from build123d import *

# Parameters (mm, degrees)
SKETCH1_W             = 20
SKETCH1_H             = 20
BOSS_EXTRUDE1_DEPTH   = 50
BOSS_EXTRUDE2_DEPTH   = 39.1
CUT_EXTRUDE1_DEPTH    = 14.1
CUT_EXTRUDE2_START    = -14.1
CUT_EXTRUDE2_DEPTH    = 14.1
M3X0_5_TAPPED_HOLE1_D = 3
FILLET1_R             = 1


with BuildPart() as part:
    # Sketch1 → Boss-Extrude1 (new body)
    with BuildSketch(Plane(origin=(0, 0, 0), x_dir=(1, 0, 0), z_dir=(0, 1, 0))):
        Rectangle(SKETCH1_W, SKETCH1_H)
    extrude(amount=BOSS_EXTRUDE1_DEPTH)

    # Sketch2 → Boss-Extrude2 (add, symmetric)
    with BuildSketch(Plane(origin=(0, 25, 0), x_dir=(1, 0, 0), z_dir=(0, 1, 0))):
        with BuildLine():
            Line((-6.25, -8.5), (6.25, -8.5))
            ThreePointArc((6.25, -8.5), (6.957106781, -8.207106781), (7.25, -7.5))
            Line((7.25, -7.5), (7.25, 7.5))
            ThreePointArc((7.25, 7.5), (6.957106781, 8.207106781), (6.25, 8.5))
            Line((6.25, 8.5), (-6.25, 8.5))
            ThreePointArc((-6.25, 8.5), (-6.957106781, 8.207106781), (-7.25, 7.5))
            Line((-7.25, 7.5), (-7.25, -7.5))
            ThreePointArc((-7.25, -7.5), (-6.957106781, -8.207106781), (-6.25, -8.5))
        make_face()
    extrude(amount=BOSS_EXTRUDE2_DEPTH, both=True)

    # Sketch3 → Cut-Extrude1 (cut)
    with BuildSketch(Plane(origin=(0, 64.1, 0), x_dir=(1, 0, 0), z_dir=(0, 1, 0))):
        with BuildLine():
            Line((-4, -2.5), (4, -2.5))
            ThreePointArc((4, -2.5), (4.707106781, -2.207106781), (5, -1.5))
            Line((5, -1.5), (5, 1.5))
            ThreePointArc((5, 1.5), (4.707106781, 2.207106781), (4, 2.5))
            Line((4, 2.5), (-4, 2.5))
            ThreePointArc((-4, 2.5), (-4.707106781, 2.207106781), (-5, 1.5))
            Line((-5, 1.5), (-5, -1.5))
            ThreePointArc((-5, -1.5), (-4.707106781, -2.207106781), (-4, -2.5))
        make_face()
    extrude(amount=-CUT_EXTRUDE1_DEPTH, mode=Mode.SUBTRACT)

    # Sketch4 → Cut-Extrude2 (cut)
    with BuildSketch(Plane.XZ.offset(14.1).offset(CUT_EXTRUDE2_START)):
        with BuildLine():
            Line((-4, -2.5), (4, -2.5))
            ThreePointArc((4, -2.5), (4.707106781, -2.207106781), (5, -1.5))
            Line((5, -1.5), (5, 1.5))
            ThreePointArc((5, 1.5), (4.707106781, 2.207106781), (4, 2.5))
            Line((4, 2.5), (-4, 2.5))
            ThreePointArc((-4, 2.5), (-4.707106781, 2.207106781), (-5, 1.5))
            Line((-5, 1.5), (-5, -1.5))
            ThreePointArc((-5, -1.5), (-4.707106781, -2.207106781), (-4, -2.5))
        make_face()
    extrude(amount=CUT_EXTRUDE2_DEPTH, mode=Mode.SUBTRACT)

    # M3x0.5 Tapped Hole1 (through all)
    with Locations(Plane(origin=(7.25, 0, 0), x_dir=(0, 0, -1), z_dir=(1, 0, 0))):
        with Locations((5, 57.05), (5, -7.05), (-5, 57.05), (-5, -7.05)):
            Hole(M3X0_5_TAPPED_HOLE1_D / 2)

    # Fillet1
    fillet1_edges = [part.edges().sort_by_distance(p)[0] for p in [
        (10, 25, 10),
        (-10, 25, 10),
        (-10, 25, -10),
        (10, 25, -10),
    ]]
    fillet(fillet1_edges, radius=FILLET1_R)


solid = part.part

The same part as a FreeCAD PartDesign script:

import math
import FreeCAD as App
import Part
import Sketcher
Q = App.Units.Quantity


def edges_at(feature, points):
    """Names of the edges that pass closest to the given points."""
    edges = feature.Shape.Edges
    near = lambda p: min(range(len(edges)), key=lambda i: edges[i].distToShape(Part.Vertex(*p))[0])
    return sorted({f"Edge{near(p) + 1}" for p in points})


def add_polygon(sketch, points):
    """Adds a closed chain of lines whose ends are joined by coincident constraints."""
    first, n = sketch.GeometryCount, len(points)
    for a, b in zip(points, points[1:] + points[:1]):
        sketch.addGeometry(Part.LineSegment(App.Vector(*a, 0), App.Vector(*b, 0)), False)
    for i in range(n):
        sketch.addConstraint(Sketcher.Constraint("Coincident", first + i, 2, first + (i + 1) % n, 1))

doc = App.newDocument("Part")
params = doc.addObject("Spreadsheet::Sheet", "Params")
for row, (alias, value) in enumerate([
    ("sketch1_width", "20 mm"),
    ("pad1_length", "50 mm"),
    ("sketch2_radius", "1 mm"),
    ("sketch2_height", "15 mm"),
    ("sketch2_width", "12.5 mm"),
    ("pad2_length", "78.2 mm"),
    ("sketch3_radius", "1 mm"),
    ("sketch3_width", "8 mm"),
    ("sketch3_height", "3 mm"),
    ("pocket1_length", "14.1 mm"),
    ("sketch4_radius", "1 mm"),
    ("sketch4_width", "8 mm"),
    ("sketch4_height", "3 mm"),
    ("pocket2_length", "14.1 mm"),
    ("sketch5_diameter", "3 mm"),
    ("hole_diameter", "3 mm"),
    ("fillet_radius", "1 mm"),
], start=1):
    params.set(f"A{row}", alias)
    params.set(f"B{row}", "=" + value)
    params.setAlias(f"B{row}", alias)

body = doc.addObject("PartDesign::Body", "Body")

# Sketch on XZ plane
sketch1 = body.newObject("Sketcher::SketchObject", "Sketch")
sketch1.AttachmentSupport = (doc.getObject("XZ_Plane"), [""])
sketch1.MapMode = "FlatFace"
add_polygon(sketch1, [(-10, -10), (-10, 10), (10, 10), (10, -10)])  # lines 0-3
sketch1.addConstraint(Sketcher.Constraint("Vertical", 0))
sketch1.addConstraint(Sketcher.Constraint("Horizontal", 1))
sketch1.addConstraint(Sketcher.Constraint("Vertical", 2))
sketch1.addConstraint(Sketcher.Constraint("Horizontal", 3))
sketch1.addConstraint(Sketcher.Constraint("Symmetric", 0, 2, 2, 2, -1, 1))
sketch1.addConstraint(Sketcher.Constraint("Equal", 3, 0))
sketch1.addConstraint(Sketcher.Constraint("DistanceX", 1, 1, 1, 2, Q("20 mm")))
sketch1.setExpression("Constraints[10]", "Params.sketch1_width")
pad1 = body.newObject("PartDesign::Pad", "Pad")
pad1.Profile = sketch1
pad1.setExpression("Length", "Params.pad1_length")
pad1.Reversed = True

# Sketch on XZ plane
sketch2 = body.newObject("Sketcher::SketchObject", "Sketch001")
sketch2.AttachmentSupport = (doc.getObject("XZ_Plane"), [""])
sketch2.MapMode = "FlatFace"
sketch2.AttachmentOffset = App.Placement(App.Vector(0, 0, -25), App.Rotation())
sketch2.addGeometry(Part.LineSegment(App.Vector(-6.2, 8.5, 0), App.Vector(6.2, 8.5, 0)), False)
sketch2.addGeometry(Part.ArcOfCircle(Part.Circle(App.Vector(6.2, 7.5, 0), App.Vector(0, 0, 1), 1), math.radians(0), math.radians(90)), False)
sketch2.addGeometry(Part.LineSegment(App.Vector(7.2, 7.5, 0), App.Vector(7.2, -7.5, 0)), False)
sketch2.addGeometry(Part.ArcOfCircle(Part.Circle(App.Vector(6.2, -7.5, 0), App.Vector(0, 0, 1), 1), math.radians(-90), math.radians(0)), False)
sketch2.addGeometry(Part.LineSegment(App.Vector(6.2, -8.5, 0), App.Vector(-6.2, -8.5, 0)), False)
sketch2.addGeometry(Part.ArcOfCircle(Part.Circle(App.Vector(-6.2, -7.5, 0), App.Vector(0, 0, 1), 1), math.radians(-180), math.radians(-90)), False)
sketch2.addGeometry(Part.LineSegment(App.Vector(-7.2, -7.5, 0), App.Vector(-7.2, 7.5, 0)), False)
sketch2.addGeometry(Part.ArcOfCircle(Part.Circle(App.Vector(-6.2, 7.5, 0), App.Vector(0, 0, 1), 1), math.radians(90), math.radians(180)), False)
sketch2.addConstraint(Sketcher.Constraint("Tangent", 0, 2, 1, 2))
sketch2.addConstraint(Sketcher.Constraint("Tangent", 1, 1, 2, 1))
sketch2.addConstraint(Sketcher.Constraint("Tangent", 2, 2, 3, 2))
sketch2.addConstraint(Sketcher.Constraint("Tangent", 3, 1, 4, 1))
sketch2.addConstraint(Sketcher.Constraint("Tangent", 4, 2, 5, 2))
sketch2.addConstraint(Sketcher.Constraint("Tangent", 5, 1, 6, 1))
sketch2.addConstraint(Sketcher.Constraint("Tangent", 6, 2, 7, 2))
sketch2.addConstraint(Sketcher.Constraint("Tangent", 7, 1, 0, 1))
sketch2.addConstraint(Sketcher.Constraint("Horizontal", 0))
sketch2.addConstraint(Sketcher.Constraint("Vertical", 2))
sketch2.addConstraint(Sketcher.Constraint("Horizontal", 4))
sketch2.addConstraint(Sketcher.Constraint("Vertical", 6))
sketch2.addConstraint(Sketcher.Constraint("Equal", 1, 3))
sketch2.addConstraint(Sketcher.Constraint("Equal", 3, 5))
sketch2.addConstraint(Sketcher.Constraint("Equal", 5, 7))
sketch2.addConstraint(Sketcher.Constraint("Symmetric", 1, 3, 5, 3, -1, 1))
sketch2.addConstraint(Sketcher.Constraint("Radius", 1, Q("1 mm")))
sketch2.addConstraint(Sketcher.Constraint("DistanceY", 2, 2, 2, 1, Q("15 mm")))
sketch2.addConstraint(Sketcher.Constraint("DistanceX", 0, 1, 0, 2, Q("12.5 mm")))
sketch2.setExpression("Constraints[16]", "Params.sketch2_radius")
sketch2.setExpression("Constraints[17]", "Params.sketch2_height")
sketch2.setExpression("Constraints[18]", "Params.sketch2_width")
pad2 = body.newObject("PartDesign::Pad", "Pad001")
pad2.Profile = sketch2
pad2.setExpression("Length", "Params.pad2_length")
pad2.Midplane = True

# Sketch on XZ plane
sketch3 = body.newObject("Sketcher::SketchObject", "Sketch002")
sketch3.AttachmentSupport = (doc.getObject("XZ_Plane"), [""])
sketch3.MapMode = "FlatFace"
sketch3.AttachmentOffset = App.Placement(App.Vector(0, 0, -64.1), App.Rotation())
sketch3.addGeometry(Part.LineSegment(App.Vector(-4, 2.5, 0), App.Vector(4, 2.5, 0)), False)
sketch3.addGeometry(Part.ArcOfCircle(Part.Circle(App.Vector(4, 1.5, 0), App.Vector(0, 0, 1), 1), math.radians(0), math.radians(90)), False)
sketch3.addGeometry(Part.LineSegment(App.Vector(5, 1.5, 0), App.Vector(5, -1.5, 0)), False)
sketch3.addGeometry(Part.ArcOfCircle(Part.Circle(App.Vector(4, -1.5, 0), App.Vector(0, 0, 1), 1), math.radians(-90), math.radians(0)), False)
sketch3.addGeometry(Part.LineSegment(App.Vector(4, -2.5, 0), App.Vector(-4, -2.5, 0)), False)
sketch3.addGeometry(Part.ArcOfCircle(Part.Circle(App.Vector(-4, -1.5, 0), App.Vector(0, 0, 1), 1), math.radians(-180), math.radians(-90)), False)
sketch3.addGeometry(Part.LineSegment(App.Vector(-5, -1.5, 0), App.Vector(-5, 1.5, 0)), False)
sketch3.addGeometry(Part.ArcOfCircle(Part.Circle(App.Vector(-4, 1.5, 0), App.Vector(0, 0, 1), 1), math.radians(90), math.radians(180)), False)
sketch3.addConstraint(Sketcher.Constraint("Tangent", 0, 2, 1, 2))
sketch3.addConstraint(Sketcher.Constraint("Tangent", 1, 1, 2, 1))
sketch3.addConstraint(Sketcher.Constraint("Tangent", 2, 2, 3, 2))
sketch3.addConstraint(Sketcher.Constraint("Tangent", 3, 1, 4, 1))
sketch3.addConstraint(Sketcher.Constraint("Tangent", 4, 2, 5, 2))
sketch3.addConstraint(Sketcher.Constraint("Tangent", 5, 1, 6, 1))
sketch3.addConstraint(Sketcher.Constraint("Tangent", 6, 2, 7, 2))
sketch3.addConstraint(Sketcher.Constraint("Tangent", 7, 1, 0, 1))
sketch3.addConstraint(Sketcher.Constraint("Horizontal", 0))
sketch3.addConstraint(Sketcher.Constraint("Vertical", 2))
sketch3.addConstraint(Sketcher.Constraint("Horizontal", 4))
sketch3.addConstraint(Sketcher.Constraint("Vertical", 6))
sketch3.addConstraint(Sketcher.Constraint("Equal", 1, 3))
sketch3.addConstraint(Sketcher.Constraint("Equal", 3, 5))
sketch3.addConstraint(Sketcher.Constraint("Equal", 5, 7))
sketch3.addConstraint(Sketcher.Constraint("Symmetric", 1, 3, 5, 3, -1, 1))
sketch3.addConstraint(Sketcher.Constraint("Radius", 1, Q("1 mm")))
sketch3.addConstraint(Sketcher.Constraint("DistanceX", 0, 1, 0, 2, Q("8 mm")))
sketch3.addConstraint(Sketcher.Constraint("DistanceY", 2, 2, 2, 1, Q("3 mm")))
sketch3.setExpression("Constraints[16]", "Params.sketch3_radius")
sketch3.setExpression("Constraints[17]", "Params.sketch3_width")
sketch3.setExpression("Constraints[18]", "Params.sketch3_height")
pocket1 = body.newObject("PartDesign::Pocket", "Pocket")
pocket1.Profile = sketch3
pocket1.setExpression("Length", "Params.pocket1_length")
pocket1.Reversed = True

# Sketch on XZ plane
sketch4 = body.newObject("Sketcher::SketchObject", "Sketch003")
sketch4.AttachmentSupport = (doc.getObject("XZ_Plane"), [""])
sketch4.MapMode = "FlatFace"
sketch4.addGeometry(Part.LineSegment(App.Vector(-4, -2.5, 0), App.Vector(4, -2.5, 0)), False)
sketch4.addGeometry(Part.ArcOfCircle(Part.Circle(App.Vector(4, -1.5, 0), App.Vector(0, 0, 1), 1), math.radians(-90), math.radians(0)), False)
sketch4.addGeometry(Part.LineSegment(App.Vector(5, -1.5, 0), App.Vector(5, 1.5, 0)), False)
sketch4.addGeometry(Part.ArcOfCircle(Part.Circle(App.Vector(4, 1.5, 0), App.Vector(0, 0, 1), 1), math.radians(0), math.radians(90)), False)
sketch4.addGeometry(Part.LineSegment(App.Vector(4, 2.5, 0), App.Vector(-4, 2.5, 0)), False)
sketch4.addGeometry(Part.ArcOfCircle(Part.Circle(App.Vector(-4, 1.5, 0), App.Vector(0, 0, 1), 1), math.radians(90), math.radians(180)), False)
sketch4.addGeometry(Part.LineSegment(App.Vector(-5, 1.5, 0), App.Vector(-5, -1.5, 0)), False)
sketch4.addGeometry(Part.ArcOfCircle(Part.Circle(App.Vector(-4, -1.5, 0), App.Vector(0, 0, 1), 1), math.radians(-180), math.radians(-90)), False)
sketch4.addConstraint(Sketcher.Constraint("Tangent", 0, 2, 1, 1))
sketch4.addConstraint(Sketcher.Constraint("Tangent", 1, 2, 2, 1))
sketch4.addConstraint(Sketcher.Constraint("Tangent", 2, 2, 3, 1))
sketch4.addConstraint(Sketcher.Constraint("Tangent", 3, 2, 4, 1))
sketch4.addConstraint(Sketcher.Constraint("Tangent", 4, 2, 5, 1))
sketch4.addConstraint(Sketcher.Constraint("Tangent", 5, 2, 6, 1))
sketch4.addConstraint(Sketcher.Constraint("Tangent", 6, 2, 7, 1))
sketch4.addConstraint(Sketcher.Constraint("Tangent", 7, 2, 0, 1))
sketch4.addConstraint(Sketcher.Constraint("Horizontal", 0))
sketch4.addConstraint(Sketcher.Constraint("Vertical", 2))
sketch4.addConstraint(Sketcher.Constraint("Horizontal", 4))
sketch4.addConstraint(Sketcher.Constraint("Vertical", 6))
sketch4.addConstraint(Sketcher.Constraint("Equal", 1, 3))
sketch4.addConstraint(Sketcher.Constraint("Equal", 3, 5))
sketch4.addConstraint(Sketcher.Constraint("Equal", 5, 7))
sketch4.addConstraint(Sketcher.Constraint("Symmetric", 1, 3, 5, 3, -1, 1))
sketch4.addConstraint(Sketcher.Constraint("Radius", 1, Q("1 mm")))
sketch4.addConstraint(Sketcher.Constraint("DistanceX", 0, 1, 0, 2, Q("8 mm")))
sketch4.addConstraint(Sketcher.Constraint("DistanceY", 2, 1, 2, 2, Q("3 mm")))
sketch4.setExpression("Constraints[16]", "Params.sketch4_radius")
sketch4.setExpression("Constraints[17]", "Params.sketch4_width")
sketch4.setExpression("Constraints[18]", "Params.sketch4_height")
pocket2 = body.newObject("PartDesign::Pocket", "Pocket001")
pocket2.Profile = sketch4
pocket2.setExpression("Length", "Params.pocket2_length")
pocket2.Reversed = True

# Sketch on YZ plane
sketch5 = body.newObject("Sketcher::SketchObject", "Sketch004")
sketch5.AttachmentSupport = (doc.getObject("YZ_Plane"), [""])
sketch5.MapMode = "FlatFace"
sketch5.AttachmentOffset = App.Placement(App.Vector(0, 0, 7.25), App.Rotation())
sketch5.addGeometry(Part.Circle(App.Vector(57, -5, 0), App.Vector(0, 0, 1), 1.5), False)
sketch5.addGeometry(Part.Circle(App.Vector(-7, -5, 0), App.Vector(0, 0, 1), 1.5), False)
sketch5.addGeometry(Part.Circle(App.Vector(57, 5, 0), App.Vector(0, 0, 1), 1.5), False)
sketch5.addGeometry(Part.Circle(App.Vector(-7, 5, 0), App.Vector(0, 0, 1), 1.5), False)
sketch5.addConstraint(Sketcher.Constraint("Equal", 0, 1))
sketch5.addConstraint(Sketcher.Constraint("Equal", 1, 2))
sketch5.addConstraint(Sketcher.Constraint("Equal", 2, 3))
sketch5.addConstraint(Sketcher.Constraint("Symmetric", 0, 3, 2, 3, -1))
sketch5.addConstraint(Sketcher.Constraint("Symmetric", 1, 3, 3, 3, -1))
sketch5.addConstraint(Sketcher.Constraint("Horizontal", 0, 3, 1, 3))
sketch5.addConstraint(Sketcher.Constraint("Diameter", 0, Q("3 mm")))
sketch5.addConstraint(Sketcher.Constraint("DistanceY", 0, 3, -1, 1, Q("5 mm")))
sketch5.addConstraint(Sketcher.Constraint("DistanceX", 1, 3, 0, 3, Q("64.1 mm")))
sketch5.addConstraint(Sketcher.Constraint("DistanceX", -1, 1, 0, 3, Q("57.05 mm")))
sketch5.setExpression("Constraints[6]", "Params.sketch5_diameter")
doc.recompute()
hole = body.newObject("PartDesign::Hole", "Hole")
hole.Profile = sketch5
hole.ThreadType = "None"
hole.setExpression("Diameter", "Params.hole_diameter")
hole.DepthType = "ThroughAll"
doc.recompute()

fillet = body.newObject("PartDesign::Fillet", "Fillet")
fillet.Base = (hole, edges_at(hole, [
    (10, 25, 10),
    (-10, 25, 10),
    (-10, 25, -10),
    (10, 25, -10),
]))
fillet.setExpression("Radius", "Params.fillet_radius")

doc.recompute()
